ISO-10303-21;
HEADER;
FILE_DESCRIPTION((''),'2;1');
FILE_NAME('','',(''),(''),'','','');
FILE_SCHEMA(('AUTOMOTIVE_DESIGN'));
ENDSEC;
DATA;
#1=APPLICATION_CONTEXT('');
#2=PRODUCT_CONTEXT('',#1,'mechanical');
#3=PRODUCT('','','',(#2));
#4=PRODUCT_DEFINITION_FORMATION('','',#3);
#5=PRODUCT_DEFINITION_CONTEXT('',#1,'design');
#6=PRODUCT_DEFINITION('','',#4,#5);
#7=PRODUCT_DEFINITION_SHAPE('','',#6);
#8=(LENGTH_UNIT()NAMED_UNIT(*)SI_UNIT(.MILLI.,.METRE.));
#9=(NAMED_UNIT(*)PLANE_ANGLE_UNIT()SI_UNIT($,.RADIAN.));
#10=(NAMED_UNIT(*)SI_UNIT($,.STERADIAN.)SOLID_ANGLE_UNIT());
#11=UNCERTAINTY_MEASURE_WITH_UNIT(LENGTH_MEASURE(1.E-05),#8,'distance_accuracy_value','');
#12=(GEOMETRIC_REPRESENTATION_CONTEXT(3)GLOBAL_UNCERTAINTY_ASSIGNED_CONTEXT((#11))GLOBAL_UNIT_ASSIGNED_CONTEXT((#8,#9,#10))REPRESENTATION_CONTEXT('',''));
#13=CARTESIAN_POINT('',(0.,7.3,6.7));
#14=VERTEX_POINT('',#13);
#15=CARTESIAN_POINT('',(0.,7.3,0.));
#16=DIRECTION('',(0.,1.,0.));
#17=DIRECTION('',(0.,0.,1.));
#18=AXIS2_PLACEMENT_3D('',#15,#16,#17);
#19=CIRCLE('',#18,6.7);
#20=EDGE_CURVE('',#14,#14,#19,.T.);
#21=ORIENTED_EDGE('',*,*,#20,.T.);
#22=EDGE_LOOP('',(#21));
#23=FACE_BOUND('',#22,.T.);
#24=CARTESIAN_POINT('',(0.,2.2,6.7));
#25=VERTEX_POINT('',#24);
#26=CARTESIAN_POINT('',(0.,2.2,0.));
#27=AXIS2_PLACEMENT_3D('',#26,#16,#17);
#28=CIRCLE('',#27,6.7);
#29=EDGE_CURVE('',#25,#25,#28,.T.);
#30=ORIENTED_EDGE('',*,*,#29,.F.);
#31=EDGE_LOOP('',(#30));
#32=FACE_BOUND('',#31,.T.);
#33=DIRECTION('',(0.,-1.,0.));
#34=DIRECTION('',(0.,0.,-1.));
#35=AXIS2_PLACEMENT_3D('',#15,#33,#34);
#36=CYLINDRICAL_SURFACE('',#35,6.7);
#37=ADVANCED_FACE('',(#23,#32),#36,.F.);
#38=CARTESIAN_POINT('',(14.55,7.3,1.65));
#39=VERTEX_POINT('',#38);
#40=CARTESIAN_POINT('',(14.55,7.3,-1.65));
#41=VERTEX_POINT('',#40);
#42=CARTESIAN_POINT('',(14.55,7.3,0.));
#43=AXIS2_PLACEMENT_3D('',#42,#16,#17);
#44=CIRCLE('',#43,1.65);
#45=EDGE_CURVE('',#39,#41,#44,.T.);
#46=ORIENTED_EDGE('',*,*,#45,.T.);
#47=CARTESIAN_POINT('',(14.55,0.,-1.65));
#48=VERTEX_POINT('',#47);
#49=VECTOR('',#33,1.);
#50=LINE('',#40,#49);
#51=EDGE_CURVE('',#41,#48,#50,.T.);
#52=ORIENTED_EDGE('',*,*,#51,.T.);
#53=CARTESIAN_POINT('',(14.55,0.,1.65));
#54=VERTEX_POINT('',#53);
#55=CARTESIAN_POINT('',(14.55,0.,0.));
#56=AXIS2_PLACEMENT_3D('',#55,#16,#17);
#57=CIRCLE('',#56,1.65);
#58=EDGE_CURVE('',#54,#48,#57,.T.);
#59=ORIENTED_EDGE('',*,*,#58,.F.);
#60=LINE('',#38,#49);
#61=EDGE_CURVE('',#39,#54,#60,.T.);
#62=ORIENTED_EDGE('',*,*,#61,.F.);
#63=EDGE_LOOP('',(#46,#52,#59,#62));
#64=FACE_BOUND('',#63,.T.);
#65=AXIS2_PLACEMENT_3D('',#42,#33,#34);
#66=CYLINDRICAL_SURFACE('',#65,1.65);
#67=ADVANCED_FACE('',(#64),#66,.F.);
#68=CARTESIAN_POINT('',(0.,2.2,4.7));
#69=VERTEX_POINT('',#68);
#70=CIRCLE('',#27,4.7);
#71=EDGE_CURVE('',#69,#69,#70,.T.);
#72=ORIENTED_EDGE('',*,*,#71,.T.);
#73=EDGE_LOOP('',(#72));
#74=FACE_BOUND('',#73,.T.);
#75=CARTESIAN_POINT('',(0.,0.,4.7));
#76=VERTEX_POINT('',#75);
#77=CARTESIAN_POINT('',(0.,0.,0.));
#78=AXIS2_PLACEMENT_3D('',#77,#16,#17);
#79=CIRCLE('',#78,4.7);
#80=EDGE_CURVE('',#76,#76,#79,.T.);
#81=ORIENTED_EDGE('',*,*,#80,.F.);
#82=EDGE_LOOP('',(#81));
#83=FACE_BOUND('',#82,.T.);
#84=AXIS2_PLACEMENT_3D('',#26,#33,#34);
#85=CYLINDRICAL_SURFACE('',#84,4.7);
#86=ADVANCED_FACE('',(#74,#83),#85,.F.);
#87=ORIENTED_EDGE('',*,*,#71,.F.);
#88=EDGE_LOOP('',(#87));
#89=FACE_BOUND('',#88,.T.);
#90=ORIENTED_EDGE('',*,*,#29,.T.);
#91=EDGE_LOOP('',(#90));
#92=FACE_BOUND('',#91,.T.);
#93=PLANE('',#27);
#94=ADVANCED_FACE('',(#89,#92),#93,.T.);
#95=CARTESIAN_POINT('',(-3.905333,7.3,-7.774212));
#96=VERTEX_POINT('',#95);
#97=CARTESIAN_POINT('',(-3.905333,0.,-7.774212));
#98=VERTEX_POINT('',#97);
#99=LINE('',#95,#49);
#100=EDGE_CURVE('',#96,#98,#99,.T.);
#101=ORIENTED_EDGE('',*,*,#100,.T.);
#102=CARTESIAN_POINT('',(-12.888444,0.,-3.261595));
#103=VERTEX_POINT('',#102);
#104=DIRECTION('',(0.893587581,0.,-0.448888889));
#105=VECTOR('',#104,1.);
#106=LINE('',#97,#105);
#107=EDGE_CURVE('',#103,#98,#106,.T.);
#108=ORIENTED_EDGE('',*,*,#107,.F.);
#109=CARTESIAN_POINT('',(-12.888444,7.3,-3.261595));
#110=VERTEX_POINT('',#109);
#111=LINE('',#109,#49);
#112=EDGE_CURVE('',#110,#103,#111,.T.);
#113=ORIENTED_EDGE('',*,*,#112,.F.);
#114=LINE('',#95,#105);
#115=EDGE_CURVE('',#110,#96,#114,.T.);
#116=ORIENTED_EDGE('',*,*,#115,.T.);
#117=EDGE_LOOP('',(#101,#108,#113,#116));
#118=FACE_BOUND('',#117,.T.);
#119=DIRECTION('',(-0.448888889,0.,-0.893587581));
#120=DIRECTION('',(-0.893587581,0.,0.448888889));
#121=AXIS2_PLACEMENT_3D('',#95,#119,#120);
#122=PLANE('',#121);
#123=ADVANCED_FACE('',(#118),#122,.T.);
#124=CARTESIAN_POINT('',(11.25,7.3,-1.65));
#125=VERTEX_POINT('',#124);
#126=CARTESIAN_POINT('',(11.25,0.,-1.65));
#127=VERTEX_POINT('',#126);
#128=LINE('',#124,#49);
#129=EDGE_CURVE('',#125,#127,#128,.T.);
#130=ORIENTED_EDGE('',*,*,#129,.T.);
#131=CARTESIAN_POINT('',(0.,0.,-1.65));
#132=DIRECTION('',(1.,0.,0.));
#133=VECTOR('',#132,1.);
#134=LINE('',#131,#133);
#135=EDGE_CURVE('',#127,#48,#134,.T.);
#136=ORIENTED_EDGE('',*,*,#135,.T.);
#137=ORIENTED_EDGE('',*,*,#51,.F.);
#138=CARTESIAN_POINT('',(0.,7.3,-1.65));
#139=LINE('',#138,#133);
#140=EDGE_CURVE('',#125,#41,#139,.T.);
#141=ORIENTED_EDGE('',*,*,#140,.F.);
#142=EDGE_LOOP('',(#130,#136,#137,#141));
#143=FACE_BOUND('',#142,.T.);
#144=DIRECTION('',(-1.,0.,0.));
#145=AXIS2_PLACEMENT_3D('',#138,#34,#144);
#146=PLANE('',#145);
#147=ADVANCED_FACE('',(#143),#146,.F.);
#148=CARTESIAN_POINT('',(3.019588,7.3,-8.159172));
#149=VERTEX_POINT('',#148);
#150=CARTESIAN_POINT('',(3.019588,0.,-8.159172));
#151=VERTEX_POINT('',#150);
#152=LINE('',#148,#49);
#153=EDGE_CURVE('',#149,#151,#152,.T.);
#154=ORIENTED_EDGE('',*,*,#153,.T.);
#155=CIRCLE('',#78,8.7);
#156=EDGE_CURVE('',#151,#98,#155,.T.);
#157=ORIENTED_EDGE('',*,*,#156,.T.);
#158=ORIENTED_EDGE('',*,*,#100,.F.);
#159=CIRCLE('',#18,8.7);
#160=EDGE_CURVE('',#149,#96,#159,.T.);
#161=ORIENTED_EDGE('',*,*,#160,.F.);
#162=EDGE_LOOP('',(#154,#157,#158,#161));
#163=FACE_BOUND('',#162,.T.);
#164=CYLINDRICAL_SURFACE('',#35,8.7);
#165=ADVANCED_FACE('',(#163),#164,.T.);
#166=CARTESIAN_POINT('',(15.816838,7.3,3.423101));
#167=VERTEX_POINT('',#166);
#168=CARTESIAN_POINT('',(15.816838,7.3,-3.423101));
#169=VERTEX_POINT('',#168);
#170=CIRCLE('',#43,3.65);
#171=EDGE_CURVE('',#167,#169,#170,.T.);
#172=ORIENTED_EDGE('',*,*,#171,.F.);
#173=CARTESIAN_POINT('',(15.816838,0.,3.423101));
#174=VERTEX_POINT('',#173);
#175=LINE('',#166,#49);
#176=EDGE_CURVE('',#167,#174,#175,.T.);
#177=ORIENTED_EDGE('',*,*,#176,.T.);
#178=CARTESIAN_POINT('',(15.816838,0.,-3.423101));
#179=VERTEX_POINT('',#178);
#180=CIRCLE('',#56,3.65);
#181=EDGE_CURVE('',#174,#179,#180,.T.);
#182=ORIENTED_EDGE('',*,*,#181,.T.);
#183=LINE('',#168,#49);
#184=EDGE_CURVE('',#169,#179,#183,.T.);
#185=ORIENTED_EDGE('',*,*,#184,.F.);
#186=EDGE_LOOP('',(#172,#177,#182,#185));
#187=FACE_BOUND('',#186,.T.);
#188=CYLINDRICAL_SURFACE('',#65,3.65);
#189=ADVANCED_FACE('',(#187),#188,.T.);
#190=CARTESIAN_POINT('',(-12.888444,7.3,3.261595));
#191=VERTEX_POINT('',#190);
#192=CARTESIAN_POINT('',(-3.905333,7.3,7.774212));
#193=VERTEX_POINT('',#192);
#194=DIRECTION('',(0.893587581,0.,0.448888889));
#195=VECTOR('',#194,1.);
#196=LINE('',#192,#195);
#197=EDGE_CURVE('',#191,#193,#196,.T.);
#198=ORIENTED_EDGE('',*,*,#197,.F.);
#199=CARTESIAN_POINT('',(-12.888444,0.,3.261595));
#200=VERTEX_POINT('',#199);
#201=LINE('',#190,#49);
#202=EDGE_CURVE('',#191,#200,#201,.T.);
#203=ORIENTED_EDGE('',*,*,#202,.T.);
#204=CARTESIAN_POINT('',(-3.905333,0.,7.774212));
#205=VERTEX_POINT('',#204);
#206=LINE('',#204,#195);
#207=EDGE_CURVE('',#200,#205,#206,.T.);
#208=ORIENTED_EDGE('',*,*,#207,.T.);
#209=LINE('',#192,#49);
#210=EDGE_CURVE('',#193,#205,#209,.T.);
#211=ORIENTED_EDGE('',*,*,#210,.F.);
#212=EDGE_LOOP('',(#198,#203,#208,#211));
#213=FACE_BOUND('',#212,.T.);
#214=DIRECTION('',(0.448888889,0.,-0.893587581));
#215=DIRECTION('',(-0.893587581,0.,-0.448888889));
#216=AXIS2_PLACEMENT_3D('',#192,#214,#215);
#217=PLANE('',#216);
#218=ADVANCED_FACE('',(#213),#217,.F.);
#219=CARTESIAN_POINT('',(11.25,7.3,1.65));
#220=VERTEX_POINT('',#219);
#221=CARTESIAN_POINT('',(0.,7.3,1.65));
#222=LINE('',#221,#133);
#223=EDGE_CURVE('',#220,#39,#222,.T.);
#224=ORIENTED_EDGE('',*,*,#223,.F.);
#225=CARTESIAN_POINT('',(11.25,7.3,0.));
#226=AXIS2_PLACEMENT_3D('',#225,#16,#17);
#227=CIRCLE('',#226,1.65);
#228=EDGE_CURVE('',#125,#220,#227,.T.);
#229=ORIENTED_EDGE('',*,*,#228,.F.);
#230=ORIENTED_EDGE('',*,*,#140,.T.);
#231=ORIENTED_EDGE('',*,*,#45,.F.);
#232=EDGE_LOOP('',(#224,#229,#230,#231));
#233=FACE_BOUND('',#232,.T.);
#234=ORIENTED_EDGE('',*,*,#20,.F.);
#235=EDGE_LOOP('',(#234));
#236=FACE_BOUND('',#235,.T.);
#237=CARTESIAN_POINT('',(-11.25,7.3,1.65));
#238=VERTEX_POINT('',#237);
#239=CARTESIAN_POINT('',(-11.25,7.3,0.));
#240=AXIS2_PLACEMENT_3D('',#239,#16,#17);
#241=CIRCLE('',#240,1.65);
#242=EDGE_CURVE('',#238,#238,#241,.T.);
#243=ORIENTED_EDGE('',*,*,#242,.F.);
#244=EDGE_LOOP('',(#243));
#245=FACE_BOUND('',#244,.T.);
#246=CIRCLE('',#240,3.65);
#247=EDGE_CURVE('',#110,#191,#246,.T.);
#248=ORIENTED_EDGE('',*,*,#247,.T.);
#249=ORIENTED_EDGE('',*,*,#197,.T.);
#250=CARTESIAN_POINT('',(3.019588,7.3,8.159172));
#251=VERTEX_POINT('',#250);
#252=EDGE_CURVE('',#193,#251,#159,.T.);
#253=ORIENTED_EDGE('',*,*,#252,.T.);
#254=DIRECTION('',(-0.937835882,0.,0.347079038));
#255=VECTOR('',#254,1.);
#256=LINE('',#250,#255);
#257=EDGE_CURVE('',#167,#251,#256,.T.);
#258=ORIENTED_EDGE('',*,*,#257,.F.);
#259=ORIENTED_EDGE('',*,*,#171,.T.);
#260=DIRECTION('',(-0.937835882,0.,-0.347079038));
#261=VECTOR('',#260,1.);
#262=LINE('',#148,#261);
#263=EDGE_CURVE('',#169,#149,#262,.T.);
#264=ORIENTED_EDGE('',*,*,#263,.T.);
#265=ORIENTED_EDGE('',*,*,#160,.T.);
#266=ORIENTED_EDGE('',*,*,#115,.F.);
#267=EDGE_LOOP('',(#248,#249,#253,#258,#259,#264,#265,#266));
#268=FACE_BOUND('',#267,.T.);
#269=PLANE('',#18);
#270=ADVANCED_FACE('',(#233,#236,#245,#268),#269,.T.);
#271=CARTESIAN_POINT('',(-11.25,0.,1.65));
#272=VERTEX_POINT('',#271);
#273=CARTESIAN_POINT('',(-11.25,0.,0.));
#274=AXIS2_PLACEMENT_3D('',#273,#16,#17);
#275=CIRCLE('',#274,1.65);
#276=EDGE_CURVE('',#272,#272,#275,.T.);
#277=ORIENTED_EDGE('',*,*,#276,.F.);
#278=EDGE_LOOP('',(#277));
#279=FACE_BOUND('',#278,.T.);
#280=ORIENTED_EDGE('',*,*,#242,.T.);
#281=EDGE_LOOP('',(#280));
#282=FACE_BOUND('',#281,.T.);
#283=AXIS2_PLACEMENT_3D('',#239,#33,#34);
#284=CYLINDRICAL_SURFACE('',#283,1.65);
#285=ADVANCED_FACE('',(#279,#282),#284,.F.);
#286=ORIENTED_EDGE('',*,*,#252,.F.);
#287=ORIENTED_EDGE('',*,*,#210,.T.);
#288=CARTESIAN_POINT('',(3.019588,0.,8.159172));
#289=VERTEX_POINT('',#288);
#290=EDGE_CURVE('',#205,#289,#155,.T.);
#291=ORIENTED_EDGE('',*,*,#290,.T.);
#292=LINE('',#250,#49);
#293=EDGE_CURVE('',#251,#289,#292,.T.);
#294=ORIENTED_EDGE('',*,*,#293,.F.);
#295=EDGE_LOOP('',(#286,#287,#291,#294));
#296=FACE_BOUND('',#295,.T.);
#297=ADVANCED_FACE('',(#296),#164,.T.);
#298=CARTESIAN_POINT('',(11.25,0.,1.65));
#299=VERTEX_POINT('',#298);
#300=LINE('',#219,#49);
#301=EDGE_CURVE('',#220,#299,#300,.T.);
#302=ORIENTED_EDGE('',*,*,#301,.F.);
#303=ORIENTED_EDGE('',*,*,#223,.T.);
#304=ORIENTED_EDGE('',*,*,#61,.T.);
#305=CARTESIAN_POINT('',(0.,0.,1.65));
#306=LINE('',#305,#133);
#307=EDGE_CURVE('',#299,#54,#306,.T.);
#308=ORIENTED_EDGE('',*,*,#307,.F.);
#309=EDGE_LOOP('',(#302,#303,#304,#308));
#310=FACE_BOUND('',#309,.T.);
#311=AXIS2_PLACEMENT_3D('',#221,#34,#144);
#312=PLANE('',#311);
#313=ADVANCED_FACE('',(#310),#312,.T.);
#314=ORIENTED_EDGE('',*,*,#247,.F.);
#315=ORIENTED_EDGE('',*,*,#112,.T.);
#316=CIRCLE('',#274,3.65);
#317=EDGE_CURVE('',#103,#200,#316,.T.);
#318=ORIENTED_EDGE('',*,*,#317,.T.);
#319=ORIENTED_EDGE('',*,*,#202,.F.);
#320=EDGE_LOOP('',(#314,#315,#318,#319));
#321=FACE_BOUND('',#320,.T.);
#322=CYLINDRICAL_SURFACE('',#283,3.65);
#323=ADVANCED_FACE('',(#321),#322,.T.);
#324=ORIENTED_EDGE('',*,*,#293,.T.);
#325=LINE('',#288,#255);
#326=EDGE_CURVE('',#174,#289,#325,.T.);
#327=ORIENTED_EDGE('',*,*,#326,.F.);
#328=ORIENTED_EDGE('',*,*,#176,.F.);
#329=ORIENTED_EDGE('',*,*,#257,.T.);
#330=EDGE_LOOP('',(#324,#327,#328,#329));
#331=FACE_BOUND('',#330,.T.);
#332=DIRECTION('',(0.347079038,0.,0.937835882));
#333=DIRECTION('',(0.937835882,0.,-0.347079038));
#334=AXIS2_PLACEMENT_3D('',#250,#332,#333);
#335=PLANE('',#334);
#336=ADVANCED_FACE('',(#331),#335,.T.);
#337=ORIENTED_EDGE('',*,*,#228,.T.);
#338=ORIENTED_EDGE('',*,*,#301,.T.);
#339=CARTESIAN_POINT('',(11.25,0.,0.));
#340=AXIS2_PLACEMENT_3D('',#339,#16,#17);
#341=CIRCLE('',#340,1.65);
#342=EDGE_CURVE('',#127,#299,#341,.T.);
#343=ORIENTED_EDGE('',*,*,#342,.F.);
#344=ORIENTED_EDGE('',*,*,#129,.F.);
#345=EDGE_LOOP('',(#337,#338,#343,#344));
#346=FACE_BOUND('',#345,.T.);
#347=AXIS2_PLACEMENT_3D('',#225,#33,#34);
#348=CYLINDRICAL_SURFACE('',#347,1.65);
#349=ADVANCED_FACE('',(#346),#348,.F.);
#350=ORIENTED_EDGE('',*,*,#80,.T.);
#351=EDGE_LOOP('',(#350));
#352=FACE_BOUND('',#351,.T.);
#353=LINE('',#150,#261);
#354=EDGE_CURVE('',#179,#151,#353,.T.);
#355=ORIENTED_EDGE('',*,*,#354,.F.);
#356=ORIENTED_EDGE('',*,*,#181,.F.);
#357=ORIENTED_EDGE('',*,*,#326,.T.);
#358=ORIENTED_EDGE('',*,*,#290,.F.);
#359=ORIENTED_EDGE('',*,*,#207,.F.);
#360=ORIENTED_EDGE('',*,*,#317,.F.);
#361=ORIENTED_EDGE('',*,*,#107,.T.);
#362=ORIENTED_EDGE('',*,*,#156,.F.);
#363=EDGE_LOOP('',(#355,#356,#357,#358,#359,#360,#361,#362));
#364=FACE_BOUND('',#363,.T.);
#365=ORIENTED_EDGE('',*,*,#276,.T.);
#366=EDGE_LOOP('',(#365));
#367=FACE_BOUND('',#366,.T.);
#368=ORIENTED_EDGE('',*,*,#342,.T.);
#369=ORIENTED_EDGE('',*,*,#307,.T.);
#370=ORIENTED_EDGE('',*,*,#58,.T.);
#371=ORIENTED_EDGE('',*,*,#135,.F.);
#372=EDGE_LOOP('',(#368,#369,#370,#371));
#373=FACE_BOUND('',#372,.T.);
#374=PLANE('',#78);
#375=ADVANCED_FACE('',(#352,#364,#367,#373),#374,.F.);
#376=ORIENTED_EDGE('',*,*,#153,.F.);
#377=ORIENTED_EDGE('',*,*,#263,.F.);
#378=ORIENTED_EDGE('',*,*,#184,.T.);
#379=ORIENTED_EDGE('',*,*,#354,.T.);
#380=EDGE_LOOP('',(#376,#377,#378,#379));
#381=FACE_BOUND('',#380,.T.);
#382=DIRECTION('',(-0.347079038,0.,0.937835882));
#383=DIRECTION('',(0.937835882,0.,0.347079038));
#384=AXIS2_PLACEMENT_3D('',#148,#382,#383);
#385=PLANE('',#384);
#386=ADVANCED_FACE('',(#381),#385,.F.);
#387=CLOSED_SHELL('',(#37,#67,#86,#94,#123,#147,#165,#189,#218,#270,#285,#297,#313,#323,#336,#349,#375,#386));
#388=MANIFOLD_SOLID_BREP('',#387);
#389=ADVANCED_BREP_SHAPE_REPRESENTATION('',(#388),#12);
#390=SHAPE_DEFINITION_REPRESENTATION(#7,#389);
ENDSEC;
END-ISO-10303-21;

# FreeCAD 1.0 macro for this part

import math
import FreeCAD as App
import Part
import Sketcher
from FreeCAD import Vector

doc = App.newDocument("Part")
body = doc.addObject("PartDesign::Body", "Body")

# Sketch on XZ plane
sketch1 = body.newObject("Sketcher::SketchObject", "Sketch")
sketch1.AttachmentSupport = (doc.getObject("XZ_Plane"), [""])
sketch1.MapMode = "FlatFace"
sketch1.addGeometry([
    Part.ArcOfCircle(Part.Circle(Vector(0, 0, 0), Vector(0, 0, 1), 8.7), math.radians(-117), math.radians(-70)),  # 0
    Part.LineSegment(Vector(-3.91, -7.77, 0), Vector(-12.89, -3.26, 0)),  # 1
    Part.ArcOfCircle(Part.Circle(Vector(-11.25, 0, 0), Vector(0, 0, 1), 3.65), math.radians(117), math.radians(243)),  # 2
    Part.LineSegment(Vector(-12.89, 3.26, 0), Vector(-3.91, 7.77, 0)),  # 3
    Part.ArcOfCircle(Part.Circle(Vector(0, 0, 0), Vector(0, 0, 1), 8.7), math.radians(70), math.radians(117)),  # 4
    Part.LineSegment(Vector(3.02, 8.16, 0), Vector(15.82, 3.42, 0)),  # 5
    Part.ArcOfCircle(Part.Circle(Vector(14.55, 0, 0), Vector(0, 0, 1), 3.65), math.radians(-70), math.radians(70)),  # 6
    Part.LineSegment(Vector(15.82, -3.42, 0), Vector(3.02, -8.16, 0)),  # 7
    Part.ArcOfCircle(Part.Circle(Vector(14.55, 0, 0), Vector(0, 0, 1), 1.65), math.radians(70), math.radians(90)),  # 8
    Part.LineSegment(Vector(14.55, 1.65, 0), Vector(11.25, 1.65, 0)),  # 9
    Part.ArcOfCircle(Part.Circle(Vector(11.25, 0, 0), Vector(0, 0, 1), 1.65), math.radians(90), math.radians(229)),  # 10
    Part.ArcOfCircle(Part.Circle(Vector(11.25, 0, 0), Vector(0, 0, 1), 1.65), math.radians(-131), math.radians(-90)),  # 11
    Part.LineSegment(Vector(11.25, -1.65, 0), Vector(14.55, -1.65, 0)),  # 12
    Part.ArcOfCircle(Part.Circle(Vector(14.55, 0, 0), Vector(0, 0, 1), 1.65), math.radians(-90), math.radians(-70)),  # 13
    Part.ArcOfCircle(Part.Circle(Vector(14.55, 0, 0), Vector(0, 0, 1), 1.65), math.radians(-70), math.radians(70)),  # 14
    Part.ArcOfCircle(Part.Circle(Vector(-11.25, 0, 0), Vector(0, 0, 1), 1.65), math.radians(14), math.radians(117)),  # 15
    Part.ArcOfCircle(Part.Circle(Vector(-11.25, 0, 0), Vector(0, 0, 1), 1.65), math.radians(117), math.radians(243)),  # 16
    Part.ArcOfCircle(Part.Circle(Vector(-11.25, 0, 0), Vector(0, 0, 1), 1.65), math.radians(-117), math.radians(0)),  # 17
    Part.ArcOfCircle(Part.Circle(Vector(-11.25, 0, 0), Vector(0, 0, 1), 1.65), math.radians(0), math.radians(14.43)),  # 18
    Part.ArcOfCircle(Part.Circle(Vector(0, 0, 0), Vector(0, 0, 1), 6.7), math.radians(117), math.radians(162)),  # 19
    Part.ArcOfCircle(Part.Circle(Vector(0, 0, 0), Vector(0, 0, 1), 6.7), math.radians(162), math.radians(243)),  # 20
    Part.ArcOfCircle(Part.Circle(Vector(0, 0, 0), Vector(0, 0, 1), 6.7), math.radians(-117), math.radians(-70)),  # 21
    Part.ArcOfCircle(Part.Circle(Vector(0, 0, 0), Vector(0, 0, 1), 6.7), math.radians(-70), math.radians(-24)),  # 22
    Part.ArcOfCircle(Part.Circle(Vector(0, 0, 0), Vector(0, 0, 1), 6.7), math.radians(-24), math.radians(0)),  # 23
    Part.ArcOfCircle(Part.Circle(Vector(0, 0, 0), Vector(0, 0, 1), 6.7), math.radians(0), math.radians(70)),  # 24
    Part.ArcOfCircle(Part.Circle(Vector(0, 0, 0), Vector(0, 0, 1), 6.7), math.radians(70), math.radians(117)),  # 25
], False)
sketch1.addConstraint([
    Sketcher.Constraint("Tangent", 0, 1, 1, 1),
    Sketcher.Constraint("Tangent", 1, 2, 2, 2),
    Sketcher.Constraint("Tangent", 2, 1, 3, 1),
    Sketcher.Constraint("Tangent", 3, 2, 4, 2),
    Sketcher.Constraint("Tangent", 4, 1, 5, 1),
    Sketcher.Constraint("Tangent", 5, 2, 6, 2),
    Sketcher.Constraint("Tangent", 6, 1, 7, 1),
    Sketcher.Constraint("Tangent", 7, 2, 0, 2),
    Sketcher.Constraint("Tangent", 8, 2, 9, 1),
    Sketcher.Constraint("Tangent", 9, 2, 10, 1),
    Sketcher.Constraint("Tangent", 10, 2, 11, 1),
    Sketcher.Constraint("Tangent", 11, 2, 12, 1),
    Sketcher.Constraint("Tangent", 12, 2, 13, 1),
    Sketcher.Constraint("Tangent", 13, 2, 14, 1),
    Sketcher.Constraint("Tangent", 14, 2, 8, 1),
    Sketcher.Constraint("Tangent", 15, 2, 16, 1),
    Sketcher.Constraint("Tangent", 16, 2, 17, 1),
    Sketcher.Constraint("Tangent", 17, 2, 18, 1),
    Sketcher.Constraint("Tangent", 18, 2, 15, 1),
    Sketcher.Constraint("Tangent", 19, 2, 20, 1),
    Sketcher.Constraint("Tangent", 20, 2, 21, 1),
    Sketcher.Constraint("Tangent", 21, 2, 22, 1),
    Sketcher.Constraint("Tangent", 22, 2, 23, 1),
    Sketcher.Constraint("Tangent", 23, 2, 24, 1),
    Sketcher.Constraint("Tangent", 24, 2, 25, 1),
    Sketcher.Constraint("Tangent", 25, 2, 19, 1),
    Sketcher.Constraint("Horizontal", 9),
    Sketcher.Constraint("Horizontal", 12),
    Sketcher.Constraint("Coincident", 0, 3, -1, 1),
    Sketcher.Constraint("Coincident", 4, 3, -1, 1),
    Sketcher.Constraint("Coincident", 19, 3, -1, 1),
    Sketcher.Constraint("Coincident", 21, 3, -1, 1),
    Sketcher.Constraint("Coincident", 23, 3, -1, 1),
    Sketcher.Constraint("Coincident", 8, 3, 6, 3),
    Sketcher.Constraint("Coincident", 13, 3, 6, 3),
    Sketcher.Constraint("Coincident", 15, 3, 2, 3),
    Sketcher.Constraint("Equal", 0, 4),
    Sketcher.Constraint("Equal", 2, 6),
    Sketcher.Constraint("Equal", 8, 10),
    Sketcher.Constraint("Equal", 14, 15),
    Sketcher.Constraint("Equal", 15, 16),
    Sketcher.Constraint("Symmetric", 2, 3, 10, 3, -1, 1),
    Sketcher.Constraint("Symmetric", 13, 2, 14, 2, -1),
    Sketcher.Constraint("PointOnObject", 17, 2, -1),
    Sketcher.Constraint("PointOnObject", 23, 2, -1),
    Sketcher.Constraint("Vertical", 15, 2, 16, 2),
    Sketcher.Constraint("Vertical", 21, 2, 24, 2),
    Sketcher.Constraint("Vertical", 20, 2, 25, 2),
    Sketcher.Constraint("Radius", 0, 8.7),
    Sketcher.Constraint("Radius", 19, 6.7),
    Sketcher.Constraint("Radius", 2, 3.65),
    Sketcher.Constraint("Radius", 8, 1.65),
    Sketcher.Constraint("DistanceX", 9, 2, 9, 1, 3.3),
    Sketcher.Constraint("DistanceX", 17, 2, -1, 1, 9.6),
    Sketcher.Constraint("DistanceX", 19, 2, -1, 1, 6.3766),
    Sketcher.Constraint("DistanceY", 21, 2, -1, 1, 6.2835),
    Sketcher.Constraint("DistanceX", -1, 1, 10, 2, 10.170272),
    Sketcher.Constraint("DistanceX", -1, 1, 13, 2, 15.12268),
    Sketcher.Constraint("DistanceY", -1, 1, 15, 2, 1.47442),
    Sketcher.Constraint("DistanceY", 22, 2, -1, 1, 2.750549),
    Sketcher.Constraint("DistanceY", 18, 2, 19, 2, 1.645391),
    Sketcher.Constraint("DistanceY", 19, 2, 25, 2, 3.93059),
])
pad1 = body.newObject("PartDesign::Pad", "Pad")
pad1.Profile = sketch1
pad1.Length = 7.3
pad1.Reversed = True

# Sketch on XZ plane
sketch2 = body.newObject("Sketcher::SketchObject", "Sketch001")
sketch2.AttachmentSupport = (doc.getObject("XZ_Plane"), [""])
sketch2.MapMode = "FlatFace"
sketch2.addGeometry([
    Part.Circle(Vector(0, 0, 0), Vector(0, 0, 1), 6.7),
    Part.Circle(Vector(0, 0, 0), Vector(0, 0, 1), 4.7),
], False)
sketch2.addConstraint([
    Sketcher.Constraint("Coincident", 0, 3, -1, 1),
    Sketcher.Constraint("Coincident", 1, 3, -1, 1),
    Sketcher.Constraint("Diameter", 0, 13.4),
    Sketcher.Constraint("Diameter", 1, 9.4),
])
pad2 = body.newObject("PartDesign::Pad", "Pad001")
pad2.Profile = sketch2
pad2.Length = 2.2
pad2.Reversed = True

doc.recompute()
